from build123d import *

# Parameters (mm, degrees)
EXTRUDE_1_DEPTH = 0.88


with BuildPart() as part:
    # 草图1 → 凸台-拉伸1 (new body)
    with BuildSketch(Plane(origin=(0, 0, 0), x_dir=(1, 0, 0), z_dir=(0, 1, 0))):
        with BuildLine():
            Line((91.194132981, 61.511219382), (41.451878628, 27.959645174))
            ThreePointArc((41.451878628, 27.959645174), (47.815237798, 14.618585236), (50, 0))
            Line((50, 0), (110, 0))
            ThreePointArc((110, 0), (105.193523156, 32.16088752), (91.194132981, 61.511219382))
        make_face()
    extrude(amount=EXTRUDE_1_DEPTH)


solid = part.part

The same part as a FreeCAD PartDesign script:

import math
import FreeCAD as App
import Part
import Sketcher

V = App.Vector
Q = App.Units.Quantity

doc = App.newDocument("Part")
body = doc.addObject("PartDesign::Body", "Body")

# Sketch on XZ plane
sketch1 = body.newObject("Sketcher::SketchObject", "Sketch")
sketch1.AttachmentSupport = (doc.getObject("XZ_Plane"), [""])
sketch1.MapMode = "FlatFace"
sketch1.addGeometry(Part.LineSegment(V(91, -62, 0), V(41, -28, 0)), False)
sketch1.addGeometry(Part.ArcOfCircle(Part.Circle(V(0, 0, 0), V(0, 0, 1), 50), math.radians(-34), math.radians(0)), False)
sketch1.addGeometry(Part.LineSegment(V(50, 0, 0), V(110, 0, 0)), False)
sketch1.addGeometry(Part.ArcOfCircle(Part.Circle(V(0, 0, 0), V(0, 0, 1), 110), math.radians(-34), math.radians(0)), False)
sketch1.addConstraint(Sketcher.Constraint("Coincident", 0, 2, 1, 1))
sketch1.addConstraint(Sketcher.Constraint("Coincident", 1, 2, 2, 1))
sketch1.addConstraint(Sketcher.Constraint("Coincident", 2, 2, 3, 2))
sketch1.addConstraint(Sketcher.Constraint("Coincident", 3, 1, 0, 1))
sketch1.addConstraint(Sketcher.Constraint("Horizontal", 2))
sketch1.addConstraint(Sketcher.Constraint("Coincident", 1, 3, -1, 1))
sketch1.addConstraint(Sketcher.Constraint("Coincident", 3, 3, -1, 1))
sketch1.addConstraint(Sketcher.Constraint("PointOnObject", 1, 2, -1))
sketch1.addConstraint(Sketcher.Constraint("Radius", 1, Q("50 mm")))
sketch1.addConstraint(Sketcher.Constraint("Radius", 3, Q("110 mm")))
sketch1.addConstraint(Sketcher.Constraint("Angle", 0, Q("146 deg")))
sketch1.addConstraint(Sketcher.Constraint("DistanceX", -1, 1, 0, 2, Q("41.451879 mm")))
pad1 = body.newObject("PartDesign::Pad", "Pad")
pad1.Profile = sketch1
pad1.Length = 0.88
pad1.Reversed = True

doc.recompute()
